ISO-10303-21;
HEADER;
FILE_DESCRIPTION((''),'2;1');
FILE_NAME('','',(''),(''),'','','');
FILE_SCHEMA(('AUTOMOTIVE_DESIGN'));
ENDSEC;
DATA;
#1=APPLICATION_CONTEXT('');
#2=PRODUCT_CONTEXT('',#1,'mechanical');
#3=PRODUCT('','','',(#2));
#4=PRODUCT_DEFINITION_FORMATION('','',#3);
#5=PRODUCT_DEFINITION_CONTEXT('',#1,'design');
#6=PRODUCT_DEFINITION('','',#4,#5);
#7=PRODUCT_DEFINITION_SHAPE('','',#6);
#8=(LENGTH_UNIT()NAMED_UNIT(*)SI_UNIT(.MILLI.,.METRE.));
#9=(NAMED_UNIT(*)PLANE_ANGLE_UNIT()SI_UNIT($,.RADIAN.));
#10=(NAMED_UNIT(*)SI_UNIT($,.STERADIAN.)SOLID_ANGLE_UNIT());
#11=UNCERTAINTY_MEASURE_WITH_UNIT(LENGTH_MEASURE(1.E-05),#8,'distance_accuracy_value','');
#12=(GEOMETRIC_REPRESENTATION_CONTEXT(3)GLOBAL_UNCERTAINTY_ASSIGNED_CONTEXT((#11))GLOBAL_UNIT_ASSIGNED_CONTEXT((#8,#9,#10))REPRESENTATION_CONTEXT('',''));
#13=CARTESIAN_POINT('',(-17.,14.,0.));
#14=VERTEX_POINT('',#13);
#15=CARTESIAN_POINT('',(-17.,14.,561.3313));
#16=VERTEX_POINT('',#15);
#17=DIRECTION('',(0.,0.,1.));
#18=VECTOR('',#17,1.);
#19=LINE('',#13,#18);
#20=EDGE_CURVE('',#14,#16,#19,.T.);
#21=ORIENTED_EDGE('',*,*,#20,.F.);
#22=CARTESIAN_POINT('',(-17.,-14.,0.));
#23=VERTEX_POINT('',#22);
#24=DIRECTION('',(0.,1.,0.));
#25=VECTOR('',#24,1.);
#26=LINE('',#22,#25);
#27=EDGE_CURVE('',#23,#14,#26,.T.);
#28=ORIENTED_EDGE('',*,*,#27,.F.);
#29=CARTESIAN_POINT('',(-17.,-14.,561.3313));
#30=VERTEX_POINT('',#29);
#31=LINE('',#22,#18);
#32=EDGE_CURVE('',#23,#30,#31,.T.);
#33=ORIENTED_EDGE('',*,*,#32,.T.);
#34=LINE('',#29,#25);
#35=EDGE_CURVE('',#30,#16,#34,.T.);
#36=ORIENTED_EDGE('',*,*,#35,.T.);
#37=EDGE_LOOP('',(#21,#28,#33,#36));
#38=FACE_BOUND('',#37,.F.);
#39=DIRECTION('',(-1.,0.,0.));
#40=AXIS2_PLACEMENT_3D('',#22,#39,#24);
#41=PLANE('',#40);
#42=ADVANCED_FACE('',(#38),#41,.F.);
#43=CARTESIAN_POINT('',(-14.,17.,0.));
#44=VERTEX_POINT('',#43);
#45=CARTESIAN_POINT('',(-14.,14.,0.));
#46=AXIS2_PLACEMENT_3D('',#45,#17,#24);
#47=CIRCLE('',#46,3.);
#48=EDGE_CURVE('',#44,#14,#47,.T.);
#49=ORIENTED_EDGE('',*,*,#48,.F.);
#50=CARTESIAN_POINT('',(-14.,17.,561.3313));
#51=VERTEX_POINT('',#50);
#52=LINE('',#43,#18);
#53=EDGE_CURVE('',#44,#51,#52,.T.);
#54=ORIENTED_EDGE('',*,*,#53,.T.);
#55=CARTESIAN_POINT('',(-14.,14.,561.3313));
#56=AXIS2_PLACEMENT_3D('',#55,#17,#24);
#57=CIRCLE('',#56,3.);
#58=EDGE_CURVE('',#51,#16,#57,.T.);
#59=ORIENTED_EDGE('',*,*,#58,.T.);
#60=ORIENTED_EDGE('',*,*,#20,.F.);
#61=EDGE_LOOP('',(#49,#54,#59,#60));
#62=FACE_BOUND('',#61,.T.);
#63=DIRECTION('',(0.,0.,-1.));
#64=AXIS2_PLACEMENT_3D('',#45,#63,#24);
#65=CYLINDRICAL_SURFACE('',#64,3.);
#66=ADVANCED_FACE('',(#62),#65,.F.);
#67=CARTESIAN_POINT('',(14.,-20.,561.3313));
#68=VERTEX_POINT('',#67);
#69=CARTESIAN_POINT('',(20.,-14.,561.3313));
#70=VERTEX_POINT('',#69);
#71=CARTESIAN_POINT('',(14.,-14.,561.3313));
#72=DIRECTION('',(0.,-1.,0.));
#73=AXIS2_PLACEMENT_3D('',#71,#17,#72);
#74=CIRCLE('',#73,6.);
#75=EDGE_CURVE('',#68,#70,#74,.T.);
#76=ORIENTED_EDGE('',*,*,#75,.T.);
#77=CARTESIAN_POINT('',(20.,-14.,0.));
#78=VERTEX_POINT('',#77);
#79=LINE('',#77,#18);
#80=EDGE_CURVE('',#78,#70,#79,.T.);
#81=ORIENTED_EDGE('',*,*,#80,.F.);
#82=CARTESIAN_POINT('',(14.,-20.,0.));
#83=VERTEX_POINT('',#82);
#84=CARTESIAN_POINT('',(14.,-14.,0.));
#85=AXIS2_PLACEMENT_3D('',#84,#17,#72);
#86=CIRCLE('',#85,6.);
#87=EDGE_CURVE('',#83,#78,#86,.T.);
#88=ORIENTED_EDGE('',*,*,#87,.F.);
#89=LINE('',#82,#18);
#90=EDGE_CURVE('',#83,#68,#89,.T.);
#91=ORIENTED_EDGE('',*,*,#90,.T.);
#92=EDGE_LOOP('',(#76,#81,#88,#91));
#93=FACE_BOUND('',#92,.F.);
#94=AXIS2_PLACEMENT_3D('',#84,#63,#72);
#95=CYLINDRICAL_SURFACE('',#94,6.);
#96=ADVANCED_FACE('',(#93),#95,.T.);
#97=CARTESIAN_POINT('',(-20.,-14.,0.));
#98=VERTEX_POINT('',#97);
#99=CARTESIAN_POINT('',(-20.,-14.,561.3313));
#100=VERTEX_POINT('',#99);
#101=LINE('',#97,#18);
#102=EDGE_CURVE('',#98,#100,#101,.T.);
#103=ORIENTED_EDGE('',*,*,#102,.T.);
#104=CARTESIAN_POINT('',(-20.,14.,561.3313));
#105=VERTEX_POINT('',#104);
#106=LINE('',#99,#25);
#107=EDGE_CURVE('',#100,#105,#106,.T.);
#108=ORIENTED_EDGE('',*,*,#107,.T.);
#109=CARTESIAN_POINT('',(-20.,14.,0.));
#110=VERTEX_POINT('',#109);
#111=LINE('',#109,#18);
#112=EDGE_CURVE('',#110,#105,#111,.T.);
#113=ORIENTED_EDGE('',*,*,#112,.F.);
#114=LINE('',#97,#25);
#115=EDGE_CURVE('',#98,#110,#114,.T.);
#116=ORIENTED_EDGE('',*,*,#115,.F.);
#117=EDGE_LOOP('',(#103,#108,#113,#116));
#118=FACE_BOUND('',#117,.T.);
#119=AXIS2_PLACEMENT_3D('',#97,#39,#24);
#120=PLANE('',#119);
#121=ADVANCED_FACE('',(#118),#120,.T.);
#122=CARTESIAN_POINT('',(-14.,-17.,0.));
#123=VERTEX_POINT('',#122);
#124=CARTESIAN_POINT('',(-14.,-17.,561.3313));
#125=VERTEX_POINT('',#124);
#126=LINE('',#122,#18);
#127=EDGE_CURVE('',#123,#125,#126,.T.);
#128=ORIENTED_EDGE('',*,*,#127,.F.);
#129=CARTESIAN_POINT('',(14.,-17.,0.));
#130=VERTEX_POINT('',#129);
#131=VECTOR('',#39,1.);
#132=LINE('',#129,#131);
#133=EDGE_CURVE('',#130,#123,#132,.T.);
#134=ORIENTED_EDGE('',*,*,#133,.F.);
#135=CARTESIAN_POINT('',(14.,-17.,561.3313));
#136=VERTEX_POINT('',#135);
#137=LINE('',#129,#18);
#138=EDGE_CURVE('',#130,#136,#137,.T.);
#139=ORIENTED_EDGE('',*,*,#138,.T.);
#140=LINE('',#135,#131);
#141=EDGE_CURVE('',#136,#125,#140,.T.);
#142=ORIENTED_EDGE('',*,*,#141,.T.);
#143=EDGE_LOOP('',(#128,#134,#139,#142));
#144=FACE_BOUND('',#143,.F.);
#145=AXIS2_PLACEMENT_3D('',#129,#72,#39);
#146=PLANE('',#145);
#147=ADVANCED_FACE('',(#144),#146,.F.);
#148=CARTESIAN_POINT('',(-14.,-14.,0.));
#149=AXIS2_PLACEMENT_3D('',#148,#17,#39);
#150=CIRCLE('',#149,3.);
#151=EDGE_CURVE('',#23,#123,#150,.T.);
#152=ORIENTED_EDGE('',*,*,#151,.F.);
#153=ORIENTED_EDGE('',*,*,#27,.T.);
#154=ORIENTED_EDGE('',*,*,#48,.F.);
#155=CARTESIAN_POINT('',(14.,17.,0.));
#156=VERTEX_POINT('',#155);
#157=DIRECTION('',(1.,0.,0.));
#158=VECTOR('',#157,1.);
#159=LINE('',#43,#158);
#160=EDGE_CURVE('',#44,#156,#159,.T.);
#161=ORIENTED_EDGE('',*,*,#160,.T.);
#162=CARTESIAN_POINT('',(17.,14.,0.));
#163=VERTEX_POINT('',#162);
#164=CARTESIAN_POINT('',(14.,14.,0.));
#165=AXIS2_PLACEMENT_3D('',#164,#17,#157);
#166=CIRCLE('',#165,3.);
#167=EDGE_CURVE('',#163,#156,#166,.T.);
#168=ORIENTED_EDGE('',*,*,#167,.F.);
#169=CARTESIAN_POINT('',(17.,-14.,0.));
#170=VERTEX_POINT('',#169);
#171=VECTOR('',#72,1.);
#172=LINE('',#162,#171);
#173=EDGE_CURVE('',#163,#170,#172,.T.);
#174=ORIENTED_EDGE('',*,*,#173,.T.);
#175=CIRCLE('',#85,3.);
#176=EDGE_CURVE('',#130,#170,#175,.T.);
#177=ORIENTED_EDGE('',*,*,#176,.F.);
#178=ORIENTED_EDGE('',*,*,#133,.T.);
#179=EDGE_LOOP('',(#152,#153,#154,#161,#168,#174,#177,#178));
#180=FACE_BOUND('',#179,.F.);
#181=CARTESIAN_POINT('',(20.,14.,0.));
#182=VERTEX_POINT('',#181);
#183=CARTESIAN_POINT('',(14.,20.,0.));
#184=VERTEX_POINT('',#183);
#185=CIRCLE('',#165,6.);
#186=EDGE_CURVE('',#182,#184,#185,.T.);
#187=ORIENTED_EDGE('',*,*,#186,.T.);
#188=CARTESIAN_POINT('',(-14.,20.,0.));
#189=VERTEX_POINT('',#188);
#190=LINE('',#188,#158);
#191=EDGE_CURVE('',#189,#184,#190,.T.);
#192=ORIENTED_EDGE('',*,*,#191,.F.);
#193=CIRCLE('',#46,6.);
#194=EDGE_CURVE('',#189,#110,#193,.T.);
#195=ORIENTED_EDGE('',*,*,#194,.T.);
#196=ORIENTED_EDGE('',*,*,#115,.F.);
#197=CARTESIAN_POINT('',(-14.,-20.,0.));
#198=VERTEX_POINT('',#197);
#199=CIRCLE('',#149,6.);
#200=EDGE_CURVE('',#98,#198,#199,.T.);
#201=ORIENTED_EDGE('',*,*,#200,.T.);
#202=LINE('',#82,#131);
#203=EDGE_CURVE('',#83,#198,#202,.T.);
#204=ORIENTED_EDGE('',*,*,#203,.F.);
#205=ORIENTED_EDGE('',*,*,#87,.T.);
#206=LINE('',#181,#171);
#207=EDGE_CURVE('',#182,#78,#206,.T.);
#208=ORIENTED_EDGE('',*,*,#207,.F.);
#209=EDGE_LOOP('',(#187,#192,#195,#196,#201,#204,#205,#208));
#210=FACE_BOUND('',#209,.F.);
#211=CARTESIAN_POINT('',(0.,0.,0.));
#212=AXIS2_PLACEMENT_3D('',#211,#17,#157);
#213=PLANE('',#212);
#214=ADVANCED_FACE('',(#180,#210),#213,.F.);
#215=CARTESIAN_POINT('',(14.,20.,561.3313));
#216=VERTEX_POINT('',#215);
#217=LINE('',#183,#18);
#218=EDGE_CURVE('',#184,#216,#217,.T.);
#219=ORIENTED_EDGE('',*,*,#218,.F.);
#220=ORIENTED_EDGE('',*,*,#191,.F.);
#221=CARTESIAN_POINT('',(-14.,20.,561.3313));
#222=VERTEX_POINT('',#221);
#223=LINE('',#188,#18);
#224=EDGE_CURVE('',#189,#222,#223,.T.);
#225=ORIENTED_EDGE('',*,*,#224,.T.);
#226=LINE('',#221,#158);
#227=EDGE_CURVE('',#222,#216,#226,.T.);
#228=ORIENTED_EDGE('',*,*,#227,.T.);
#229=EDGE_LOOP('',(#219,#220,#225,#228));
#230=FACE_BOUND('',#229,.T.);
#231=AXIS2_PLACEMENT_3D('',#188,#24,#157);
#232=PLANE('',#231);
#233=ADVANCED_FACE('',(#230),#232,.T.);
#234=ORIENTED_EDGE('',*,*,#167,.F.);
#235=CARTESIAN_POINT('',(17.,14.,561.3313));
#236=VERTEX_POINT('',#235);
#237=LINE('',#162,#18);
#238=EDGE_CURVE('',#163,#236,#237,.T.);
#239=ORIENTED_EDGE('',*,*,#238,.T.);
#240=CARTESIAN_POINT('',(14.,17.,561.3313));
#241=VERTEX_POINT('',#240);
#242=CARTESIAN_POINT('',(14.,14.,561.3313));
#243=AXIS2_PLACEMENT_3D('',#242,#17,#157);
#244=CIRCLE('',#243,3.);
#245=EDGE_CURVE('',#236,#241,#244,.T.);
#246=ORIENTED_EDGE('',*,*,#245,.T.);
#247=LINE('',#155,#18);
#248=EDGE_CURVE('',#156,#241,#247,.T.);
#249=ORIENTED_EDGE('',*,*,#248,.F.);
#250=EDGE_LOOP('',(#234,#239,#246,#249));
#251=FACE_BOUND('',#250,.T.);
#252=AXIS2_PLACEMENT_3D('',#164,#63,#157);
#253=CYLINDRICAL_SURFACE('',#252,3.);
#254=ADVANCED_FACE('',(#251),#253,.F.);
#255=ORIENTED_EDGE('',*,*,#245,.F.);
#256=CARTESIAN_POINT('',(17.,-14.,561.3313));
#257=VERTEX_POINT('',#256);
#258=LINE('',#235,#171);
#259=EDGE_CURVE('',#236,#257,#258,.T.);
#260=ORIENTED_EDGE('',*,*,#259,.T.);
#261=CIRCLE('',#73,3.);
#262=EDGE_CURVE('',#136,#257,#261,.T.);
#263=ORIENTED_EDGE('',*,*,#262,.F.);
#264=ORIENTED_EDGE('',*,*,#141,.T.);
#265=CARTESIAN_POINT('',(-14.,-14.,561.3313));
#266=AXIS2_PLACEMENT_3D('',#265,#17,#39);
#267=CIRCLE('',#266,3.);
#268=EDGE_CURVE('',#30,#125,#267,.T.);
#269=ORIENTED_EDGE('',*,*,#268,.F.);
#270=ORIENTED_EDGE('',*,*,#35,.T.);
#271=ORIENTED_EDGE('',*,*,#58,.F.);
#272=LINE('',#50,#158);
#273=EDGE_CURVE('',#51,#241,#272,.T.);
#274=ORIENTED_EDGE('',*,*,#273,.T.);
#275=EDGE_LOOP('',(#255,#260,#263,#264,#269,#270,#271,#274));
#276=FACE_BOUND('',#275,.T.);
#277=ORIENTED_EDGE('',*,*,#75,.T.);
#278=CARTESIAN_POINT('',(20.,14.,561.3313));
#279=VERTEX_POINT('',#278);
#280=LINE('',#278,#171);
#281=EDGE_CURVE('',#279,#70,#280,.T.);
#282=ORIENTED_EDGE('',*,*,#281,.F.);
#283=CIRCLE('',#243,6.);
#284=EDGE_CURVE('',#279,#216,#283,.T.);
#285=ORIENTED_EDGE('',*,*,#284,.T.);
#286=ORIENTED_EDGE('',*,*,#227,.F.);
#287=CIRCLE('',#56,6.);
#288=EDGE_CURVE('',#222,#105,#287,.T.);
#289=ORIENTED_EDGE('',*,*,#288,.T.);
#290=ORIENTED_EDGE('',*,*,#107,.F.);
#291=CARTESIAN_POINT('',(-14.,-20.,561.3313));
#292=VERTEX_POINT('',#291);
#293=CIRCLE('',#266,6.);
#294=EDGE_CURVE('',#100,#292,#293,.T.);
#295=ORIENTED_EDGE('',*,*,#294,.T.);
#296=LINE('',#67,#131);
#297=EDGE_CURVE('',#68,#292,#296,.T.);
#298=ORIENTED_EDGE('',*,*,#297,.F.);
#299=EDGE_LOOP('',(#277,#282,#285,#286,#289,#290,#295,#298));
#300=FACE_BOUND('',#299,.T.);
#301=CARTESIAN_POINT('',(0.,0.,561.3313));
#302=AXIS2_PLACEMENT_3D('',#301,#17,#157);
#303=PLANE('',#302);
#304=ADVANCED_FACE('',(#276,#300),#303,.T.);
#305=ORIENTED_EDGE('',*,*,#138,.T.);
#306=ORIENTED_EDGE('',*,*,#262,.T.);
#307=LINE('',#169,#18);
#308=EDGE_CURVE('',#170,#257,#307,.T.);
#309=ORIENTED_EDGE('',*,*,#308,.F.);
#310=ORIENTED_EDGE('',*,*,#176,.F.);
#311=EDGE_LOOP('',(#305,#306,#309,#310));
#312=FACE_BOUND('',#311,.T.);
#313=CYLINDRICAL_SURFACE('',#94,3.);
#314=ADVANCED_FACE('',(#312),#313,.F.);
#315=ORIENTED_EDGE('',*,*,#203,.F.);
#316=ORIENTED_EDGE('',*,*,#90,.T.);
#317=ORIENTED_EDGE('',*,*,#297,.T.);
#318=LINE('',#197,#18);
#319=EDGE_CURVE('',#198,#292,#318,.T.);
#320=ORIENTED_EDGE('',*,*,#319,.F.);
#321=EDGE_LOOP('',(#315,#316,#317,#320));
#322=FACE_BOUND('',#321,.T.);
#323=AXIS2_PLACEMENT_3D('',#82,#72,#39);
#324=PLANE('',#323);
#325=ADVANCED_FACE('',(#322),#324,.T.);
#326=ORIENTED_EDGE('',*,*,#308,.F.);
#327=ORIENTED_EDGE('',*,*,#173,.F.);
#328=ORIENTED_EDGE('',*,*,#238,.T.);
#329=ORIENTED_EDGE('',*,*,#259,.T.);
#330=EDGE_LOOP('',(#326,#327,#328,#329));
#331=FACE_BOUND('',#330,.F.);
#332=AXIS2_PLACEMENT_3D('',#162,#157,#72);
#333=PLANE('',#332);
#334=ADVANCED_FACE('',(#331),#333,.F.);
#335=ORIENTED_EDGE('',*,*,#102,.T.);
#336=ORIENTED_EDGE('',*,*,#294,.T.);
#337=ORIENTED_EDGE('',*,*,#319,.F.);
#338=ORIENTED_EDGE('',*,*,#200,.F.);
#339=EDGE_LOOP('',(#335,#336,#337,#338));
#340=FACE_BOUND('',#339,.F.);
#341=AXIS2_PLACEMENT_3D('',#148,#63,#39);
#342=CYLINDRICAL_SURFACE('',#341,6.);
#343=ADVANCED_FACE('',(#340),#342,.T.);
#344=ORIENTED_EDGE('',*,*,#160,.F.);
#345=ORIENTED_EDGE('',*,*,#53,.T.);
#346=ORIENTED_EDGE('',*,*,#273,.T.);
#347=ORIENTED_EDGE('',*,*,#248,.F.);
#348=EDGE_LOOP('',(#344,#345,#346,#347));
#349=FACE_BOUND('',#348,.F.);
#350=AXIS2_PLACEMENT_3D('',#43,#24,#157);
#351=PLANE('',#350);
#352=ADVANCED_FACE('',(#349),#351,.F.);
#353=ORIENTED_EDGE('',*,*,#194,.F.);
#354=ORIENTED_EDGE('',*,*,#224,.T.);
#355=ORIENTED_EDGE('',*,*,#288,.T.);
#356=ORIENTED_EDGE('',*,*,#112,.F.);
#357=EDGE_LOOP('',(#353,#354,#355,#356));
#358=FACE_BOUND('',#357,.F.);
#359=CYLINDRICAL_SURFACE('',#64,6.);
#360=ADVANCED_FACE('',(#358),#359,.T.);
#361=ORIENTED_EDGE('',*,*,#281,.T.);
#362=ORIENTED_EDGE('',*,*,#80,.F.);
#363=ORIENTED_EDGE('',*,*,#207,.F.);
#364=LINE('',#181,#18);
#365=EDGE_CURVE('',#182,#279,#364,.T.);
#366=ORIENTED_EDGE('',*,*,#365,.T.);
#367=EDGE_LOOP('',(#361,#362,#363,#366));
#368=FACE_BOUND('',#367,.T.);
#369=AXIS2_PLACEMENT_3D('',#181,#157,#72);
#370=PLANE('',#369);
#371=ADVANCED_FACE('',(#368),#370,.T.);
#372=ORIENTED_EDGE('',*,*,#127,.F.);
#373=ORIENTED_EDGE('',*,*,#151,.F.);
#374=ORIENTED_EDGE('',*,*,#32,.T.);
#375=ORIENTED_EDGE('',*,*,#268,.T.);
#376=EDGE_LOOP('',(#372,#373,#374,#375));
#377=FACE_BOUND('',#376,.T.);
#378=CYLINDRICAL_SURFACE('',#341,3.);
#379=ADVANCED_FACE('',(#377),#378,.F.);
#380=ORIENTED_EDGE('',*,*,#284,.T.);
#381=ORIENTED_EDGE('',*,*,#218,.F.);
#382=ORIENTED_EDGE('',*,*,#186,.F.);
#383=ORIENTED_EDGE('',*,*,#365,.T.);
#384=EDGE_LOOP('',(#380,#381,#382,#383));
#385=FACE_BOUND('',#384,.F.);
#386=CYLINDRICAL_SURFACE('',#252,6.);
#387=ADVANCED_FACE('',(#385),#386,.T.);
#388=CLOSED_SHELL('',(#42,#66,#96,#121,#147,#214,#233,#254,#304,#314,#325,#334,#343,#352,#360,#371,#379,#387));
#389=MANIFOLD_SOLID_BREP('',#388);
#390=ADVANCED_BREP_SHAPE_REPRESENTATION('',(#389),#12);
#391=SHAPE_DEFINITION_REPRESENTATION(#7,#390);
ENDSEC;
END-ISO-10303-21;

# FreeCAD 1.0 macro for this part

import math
import FreeCAD as App
import Part
import Sketcher
Q = App.Units.Quantity

doc = App.newDocument("Part")
params = doc.addObject("Spreadsheet::Sheet", "Params")
for row, (alias, value) in enumerate([
    ("sketch1_radius", "6 mm"),
    ("sketch1_radius2", "3 mm"),
    ("pad1_length", "561.3313 mm"),
], start=1):
    params.set(f"A{row}", alias)
    params.set(f"B{row}", "=" + value)
    params.setAlias(f"B{row}", alias)

body = doc.addObject("PartDesign::Body", "Body")

# Sketch on XY plane
sketch1 = body.newObject("Sketcher::SketchObject", "Sketch")
sketch1.AttachmentSupport = (doc.getObject("XY_Plane"), [""])
sketch1.MapMode = "FlatFace"
sketch1.addGeometry([
    Part.LineSegment(App.Vector(-20, 14, 0), App.Vector(-20, -14, 0)),  # 0
    Part.ArcOfCircle(Part.Circle(App.Vector(-14, -14, 0), App.Vector(0, 0, 1), 6), math.radians(180), math.radians(270)),  # 1
    Part.LineSegment(App.Vector(-14, -20, 0), App.Vector(14, -20, 0)),  # 2
    Part.ArcOfCircle(Part.Circle(App.Vector(14, -14, 0), App.Vector(0, 0, 1), 6), math.radians(-90), math.radians(0)),  # 3
    Part.LineSegment(App.Vector(20, -14, 0), App.Vector(20, 14, 0)),  # 4
    Part.ArcOfCircle(Part.Circle(App.Vector(14, 14, 0), App.Vector(0, 0, 1), 6), math.radians(0), math.radians(90)),  # 5
    Part.LineSegment(App.Vector(14, 20, 0), App.Vector(-14, 20, 0)),  # 6
    Part.ArcOfCircle(Part.Circle(App.Vector(-14, 14, 0), App.Vector(0, 0, 1), 6), math.radians(90), math.radians(180)),  # 7
    Part.ArcOfCircle(Part.Circle(App.Vector(-14, 14, 0), App.Vector(0, 0, 1), 3), math.radians(90), math.radians(180)),  # 8
    Part.LineSegment(App.Vector(-14, 17, 0), App.Vector(14, 17, 0)),  # 9
    Part.ArcOfCircle(Part.Circle(App.Vector(14, 14, 0), App.Vector(0, 0, 1), 3), math.radians(0), math.radians(90)),  # 10
    Part.LineSegment(App.Vector(17, 14, 0), App.Vector(17, -14, 0)),  # 11
    Part.ArcOfCircle(Part.Circle(App.Vector(14, -14, 0), App.Vector(0, 0, 1), 3), math.radians(-90), math.radians(0)),  # 12
    Part.LineSegment(App.Vector(14, -17, 0), App.Vector(-14, -17, 0)),  # 13
    Part.ArcOfCircle(Part.Circle(App.Vector(-14, -14, 0), App.Vector(0, 0, 1), 3), math.radians(180), math.radians(270)),  # 14
    Part.LineSegment(App.Vector(-17, -14, 0), App.Vector(-17, 14, 0)),  # 15
], False)
sketch1.addConstraint([
    Sketcher.Constraint("Tangent", 0, 2, 1, 1),
    Sketcher.Constraint("Tangent", 1, 2, 2, 1),
    Sketcher.Constraint("Tangent", 2, 2, 3, 1),
    Sketcher.Constraint("Tangent", 3, 2, 4, 1),
    Sketcher.Constraint("Tangent", 4, 2, 5, 1),
    Sketcher.Constraint("Tangent", 5, 2, 6, 1),
    Sketcher.Constraint("Tangent", 6, 2, 7, 1),
    Sketcher.Constraint("Tangent", 7, 2, 0, 1),
    Sketcher.Constraint("Tangent", 8, 1, 9, 1),
    Sketcher.Constraint("Tangent", 9, 2, 10, 2),
    Sketcher.Constraint("Tangent", 10, 1, 11, 1),
    Sketcher.Constraint("Tangent", 11, 2, 12, 2),
    Sketcher.Constraint("Tangent", 12, 1, 13, 1),
    Sketcher.Constraint("Tangent", 13, 2, 14, 2),
    Sketcher.Constraint("Tangent", 14, 1, 15, 1),
    Sketcher.Constraint("Tangent", 15, 2, 8, 2),
    Sketcher.Constraint("Vertical", 0),
    Sketcher.Constraint("Horizontal", 2),
    Sketcher.Constraint("Vertical", 4),
    Sketcher.Constraint("Horizontal", 6),
    Sketcher.Constraint("Horizontal", 9),
    Sketcher.Constraint("Vertical", 11),
    Sketcher.Constraint("Horizontal", 13),
    Sketcher.Constraint("Vertical", 15),
    Sketcher.Constraint("Coincident", 8, 3, 7, 3),
    Sketcher.Constraint("Coincident", 10, 3, 5, 3),
    Sketcher.Constraint("Coincident", 12, 3, 3, 3),
    Sketcher.Constraint("Equal", 1, 3),
    Sketcher.Constraint("Equal", 3, 5),
    Sketcher.Constraint("Equal", 5, 7),
    Sketcher.Constraint("Equal", 12, 14),
    Sketcher.Constraint("Symmetric", 1, 3, 5, 3, -1, 1),
    Sketcher.Constraint("Equal", 13, 0),
    Sketcher.Constraint("Radius", 1, Q("6 mm")),
    Sketcher.Constraint("Radius", 8, Q("3 mm")),
    Sketcher.Constraint("DistanceX", 0, 2, -1, 1, Q("20 mm")),
])
sketch1.setExpression("Constraints[33]", "Params.sketch1_radius")
sketch1.setExpression("Constraints[34]", "Params.sketch1_radius2")
pad1 = body.newObject("PartDesign::Pad", "Pad")
pad1.Profile = sketch1
pad1.setExpression("Length", "Params.pad1_length")

doc.recompute()
